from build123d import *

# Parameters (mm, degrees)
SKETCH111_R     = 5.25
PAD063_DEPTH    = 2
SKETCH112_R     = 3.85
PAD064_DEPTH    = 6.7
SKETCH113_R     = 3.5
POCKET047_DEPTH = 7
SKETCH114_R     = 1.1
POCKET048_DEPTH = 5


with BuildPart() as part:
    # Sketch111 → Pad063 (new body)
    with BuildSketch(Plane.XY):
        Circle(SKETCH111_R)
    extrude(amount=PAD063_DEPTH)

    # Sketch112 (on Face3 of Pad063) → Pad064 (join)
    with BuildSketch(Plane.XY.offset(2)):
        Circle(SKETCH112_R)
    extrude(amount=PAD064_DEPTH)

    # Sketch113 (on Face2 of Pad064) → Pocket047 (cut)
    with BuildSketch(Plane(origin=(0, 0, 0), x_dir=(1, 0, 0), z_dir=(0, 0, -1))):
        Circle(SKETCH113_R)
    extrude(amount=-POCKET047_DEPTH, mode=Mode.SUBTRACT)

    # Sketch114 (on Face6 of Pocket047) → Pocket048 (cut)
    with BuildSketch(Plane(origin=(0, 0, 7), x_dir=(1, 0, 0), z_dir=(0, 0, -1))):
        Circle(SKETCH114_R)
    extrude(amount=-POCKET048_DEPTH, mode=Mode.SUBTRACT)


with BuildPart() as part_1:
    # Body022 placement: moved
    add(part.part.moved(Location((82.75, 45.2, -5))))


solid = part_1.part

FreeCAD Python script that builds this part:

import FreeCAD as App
import Part
import Sketcher

V = App.Vector

doc = App.newDocument("Part")
body = doc.addObject("PartDesign::Body", "Body")

sketch1 = body.newObject("Sketcher::SketchObject", "Sketch")
sketch1.AttachmentSupport = (doc.getObject("XY_Plane"), [""])
sketch1.MapMode = "FlatFace"
sketch1.addGeometry(Part.Circle(V(0, 0, 0), V(0, 0, 1), 5), False)
sketch1.addConstraint([
    Sketcher.Constraint("Coincident", 0, 3, -1, 1),
    Sketcher.Constraint("Diameter", 0, 10.5),
])
pad1 = body.newObject("PartDesign::Pad", "Pad")
pad1.Profile = sketch1
pad1.Length = 2

sketch2 = body.newObject("Sketcher::SketchObject", "Sketch001")
sketch2.AttachmentSupport = (doc.getObject("XY_Plane"), [""])
sketch2.MapMode = "FlatFace"
sketch2.AttachmentOffset = App.Placement(V(0, 0, 2), App.Rotation())
sketch2.addGeometry(Part.Circle(V(0, 0, 0), V(0, 0, 1), 3.9), False)
sketch2.addConstraint([
    Sketcher.Constraint("Coincident", 0, 3, -1, 1),
    Sketcher.Constraint("Diameter", 0, 7.7),
])
pad2 = body.newObject("PartDesign::Pad", "Pad001")
pad2.Profile = sketch2
pad2.Length = 6.7

sketch3 = body.newObject("Sketcher::SketchObject", "Sketch002")
sketch3.AttachmentSupport = (doc.getObject("XY_Plane"), [""])
sketch3.MapMode = "FlatFace"
sketch3.addGeometry(Part.Circle(V(0, 0, 0), V(0, 0, 1), 3.5), False)
sketch3.addConstraint([
    Sketcher.Constraint("Coincident", 0, 3, -1, 1),
    Sketcher.Constraint("Diameter", 0, 7.0),
])
pocket1 = body.newObject("PartDesign::Pocket", "Pocket")
pocket1.Profile = sketch3
pocket1.Length = 7
pocket1.Reversed = True

sketch4 = body.newObject("Sketcher::SketchObject", "Sketch003")
sketch4.AttachmentSupport = (doc.getObject("XY_Plane"), [""])
sketch4.MapMode = "FlatFace"
sketch4.AttachmentOffset = App.Placement(V(0, 0, 7), App.Rotation())
sketch4.addGeometry(Part.Circle(V(0, 0, 0), V(0, 0, 1), 1.1), False)
sketch4.addConstraint([
    Sketcher.Constraint("Coincident", 0, 3, -1, 1),
    Sketcher.Constraint("Diameter", 0, 2.2),
])
pocket2 = body.newObject("PartDesign::Pocket", "Pocket001")
pocket2.Profile = sketch4
pocket2.Length = 5
pocket2.Reversed = True
body2 = doc.addObject("PartDesign::Body", "Body001")
doc.recompute()

body.Placement = App.Placement(V(82.75, 45.2, -5), App.Rotation(V(0, 0, 1), 0))
boolean = body2.newObject("PartDesign::Boolean", "Boolean")
boolean.Type = "Fuse"
boolean.addObjects([body])

doc.recompute()
